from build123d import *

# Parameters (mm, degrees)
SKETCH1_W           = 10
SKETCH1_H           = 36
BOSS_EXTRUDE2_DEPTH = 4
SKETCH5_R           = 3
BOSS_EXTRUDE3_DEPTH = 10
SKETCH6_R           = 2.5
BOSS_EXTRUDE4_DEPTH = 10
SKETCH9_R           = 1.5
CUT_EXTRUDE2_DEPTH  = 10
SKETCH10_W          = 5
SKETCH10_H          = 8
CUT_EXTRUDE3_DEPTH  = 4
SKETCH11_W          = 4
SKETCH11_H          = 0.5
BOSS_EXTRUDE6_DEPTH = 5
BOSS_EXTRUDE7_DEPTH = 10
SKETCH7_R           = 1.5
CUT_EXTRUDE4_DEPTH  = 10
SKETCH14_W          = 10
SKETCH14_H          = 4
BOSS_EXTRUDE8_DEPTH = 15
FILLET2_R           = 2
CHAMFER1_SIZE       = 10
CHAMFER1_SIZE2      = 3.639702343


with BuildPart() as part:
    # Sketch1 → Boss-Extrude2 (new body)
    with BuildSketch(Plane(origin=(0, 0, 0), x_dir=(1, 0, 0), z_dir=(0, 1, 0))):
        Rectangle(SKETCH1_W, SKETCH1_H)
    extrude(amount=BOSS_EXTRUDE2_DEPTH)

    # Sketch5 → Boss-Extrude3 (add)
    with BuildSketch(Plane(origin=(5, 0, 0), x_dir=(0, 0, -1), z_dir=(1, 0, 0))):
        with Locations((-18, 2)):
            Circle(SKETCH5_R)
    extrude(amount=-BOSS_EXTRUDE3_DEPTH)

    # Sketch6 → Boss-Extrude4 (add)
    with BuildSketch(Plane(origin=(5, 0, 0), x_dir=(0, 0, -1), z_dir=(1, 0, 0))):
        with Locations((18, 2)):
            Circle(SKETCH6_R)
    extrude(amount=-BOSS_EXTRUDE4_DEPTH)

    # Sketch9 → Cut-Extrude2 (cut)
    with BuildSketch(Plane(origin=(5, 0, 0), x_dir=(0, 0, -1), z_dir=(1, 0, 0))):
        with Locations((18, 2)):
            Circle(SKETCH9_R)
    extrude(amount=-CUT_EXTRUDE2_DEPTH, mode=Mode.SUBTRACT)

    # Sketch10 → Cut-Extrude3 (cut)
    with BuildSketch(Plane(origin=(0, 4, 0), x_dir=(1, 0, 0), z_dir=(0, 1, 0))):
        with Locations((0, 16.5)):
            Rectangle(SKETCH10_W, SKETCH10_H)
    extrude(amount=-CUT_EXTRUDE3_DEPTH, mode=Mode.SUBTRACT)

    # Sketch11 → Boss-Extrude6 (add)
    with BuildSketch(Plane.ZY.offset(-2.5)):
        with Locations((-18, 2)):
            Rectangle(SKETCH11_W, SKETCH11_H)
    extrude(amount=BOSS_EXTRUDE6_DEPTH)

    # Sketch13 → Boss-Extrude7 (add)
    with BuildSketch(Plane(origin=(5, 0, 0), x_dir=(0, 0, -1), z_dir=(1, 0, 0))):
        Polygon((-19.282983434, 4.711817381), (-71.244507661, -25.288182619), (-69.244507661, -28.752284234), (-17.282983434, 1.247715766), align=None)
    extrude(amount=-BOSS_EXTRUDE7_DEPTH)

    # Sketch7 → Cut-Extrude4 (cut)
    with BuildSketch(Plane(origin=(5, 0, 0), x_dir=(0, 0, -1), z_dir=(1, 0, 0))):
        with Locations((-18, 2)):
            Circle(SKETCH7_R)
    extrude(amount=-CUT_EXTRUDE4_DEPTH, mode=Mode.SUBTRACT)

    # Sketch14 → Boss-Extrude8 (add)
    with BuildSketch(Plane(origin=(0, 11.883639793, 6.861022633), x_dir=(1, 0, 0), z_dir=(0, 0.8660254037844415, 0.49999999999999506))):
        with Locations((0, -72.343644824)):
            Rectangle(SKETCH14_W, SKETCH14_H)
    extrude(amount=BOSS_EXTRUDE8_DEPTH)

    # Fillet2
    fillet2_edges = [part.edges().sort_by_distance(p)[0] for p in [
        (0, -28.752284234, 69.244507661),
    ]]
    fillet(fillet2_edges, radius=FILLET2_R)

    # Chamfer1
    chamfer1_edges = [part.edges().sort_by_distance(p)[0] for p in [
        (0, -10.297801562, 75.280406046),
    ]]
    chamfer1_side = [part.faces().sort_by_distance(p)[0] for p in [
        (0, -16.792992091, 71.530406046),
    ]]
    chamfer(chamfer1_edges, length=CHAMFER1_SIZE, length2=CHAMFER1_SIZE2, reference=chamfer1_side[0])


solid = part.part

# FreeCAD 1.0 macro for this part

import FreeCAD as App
import Part
import Sketcher
Q = App.Units.Quantity


def edges_at(feature, points):
    """Names of the edges that pass closest to the given points."""
    edges = feature.Shape.Edges
    near = lambda p: min(range(len(edges)), key=lambda i: edges[i].distToShape(Part.Vertex(*p))[0])
    return sorted({f"Edge{near(p) + 1}" for p in points})

doc = App.newDocument("Part")
body = doc.addObject("PartDesign::Body", "Body")

sketch1 = body.newObject("Sketcher::SketchObject", "Sketch")
sketch1.AttachmentSupport = (doc.getObject("XZ_Plane"), [""])
sketch1.MapMode = "FlatFace"
sketch1.addGeometry([
    Part.LineSegment(App.Vector(-5, -18, 0), App.Vector(-5, 18, 0)),
    Part.LineSegment(App.Vector(-5, 18, 0), App.Vector(5, 18, 0)),
    Part.LineSegment(App.Vector(5, 18, 0), App.Vector(5, -18, 0)),
    Part.LineSegment(App.Vector(5, -18, 0), App.Vector(-5, -18, 0)),
], False)
sketch1.addConstraint([
    Sketcher.Constraint("Coincident", 0, 2, 1, 1),
    Sketcher.Constraint("Coincident", 1, 2, 2, 1),
    Sketcher.Constraint("Coincident", 2, 2, 3, 1),
    Sketcher.Constraint("Coincident", 3, 2, 0, 1),
    Sketcher.Constraint("Vertical", 0),
    Sketcher.Constraint("Horizontal", 1),
    Sketcher.Constraint("Vertical", 2),
    Sketcher.Constraint("Horizontal", 3),
    Sketcher.Constraint("Symmetric", 0, 2, 2, 2, -1, 1),
    Sketcher.Constraint("DistanceX", 1, 1, 1, 2, 10.0),
    Sketcher.Constraint("DistanceY", 0, 1, 0, 2, 36.0),
])
pad1 = body.newObject("PartDesign::Pad", "Pad")
pad1.Profile = sketch1
pad1.Length = 4
pad1.Reversed = True

sketch2 = body.newObject("Sketcher::SketchObject", "Sketch001")
sketch2.AttachmentSupport = (doc.getObject("YZ_Plane"), [""])
sketch2.MapMode = "FlatFace"
sketch2.AttachmentOffset = App.Placement(App.Vector(0, 0, 5), App.Rotation())
sketch2.addGeometry(Part.Circle(App.Vector(2, 18, 0), App.Vector(0, 0, 1), 3), False)
sketch2.addConstraint([
    Sketcher.Constraint("Diameter", 0, 6.0),
    Sketcher.Constraint("DistanceX", -1, 1, 0, 3, 2.0),
    Sketcher.Constraint("DistanceY", -1, 1, 0, 3, 18.0),
])
pad2 = body.newObject("PartDesign::Pad", "Pad001")
pad2.Profile = sketch2
pad2.Length = 10
pad2.Reversed = True

sketch3 = body.newObject("Sketcher::SketchObject", "Sketch002")
sketch3.AttachmentSupport = (doc.getObject("YZ_Plane"), [""])
sketch3.MapMode = "FlatFace"
sketch3.AttachmentOffset = App.Placement(App.Vector(0, 0, 5), App.Rotation())
sketch3.addGeometry(Part.Circle(App.Vector(2, -18, 0), App.Vector(0, 0, 1), 2.5), False)
sketch3.addConstraint([
    Sketcher.Constraint("Diameter", 0, 5.0),
    Sketcher.Constraint("DistanceX", -1, 1, 0, 3, 2.0),
    Sketcher.Constraint("DistanceY", 0, 3, -1, 1, 18.0),
])
pad3 = body.newObject("PartDesign::Pad", "Pad002")
pad3.Profile = sketch3
pad3.Length = 10
pad3.Reversed = True

sketch4 = body.newObject("Sketcher::SketchObject", "Sketch003")
sketch4.AttachmentSupport = (doc.getObject("YZ_Plane"), [""])
sketch4.MapMode = "FlatFace"
sketch4.AttachmentOffset = App.Placement(App.Vector(0, 0, 5), App.Rotation())
sketch4.addGeometry(Part.Circle(App.Vector(2, -18, 0), App.Vector(0, 0, 1), 1.5), False)
sketch4.addConstraint([
    Sketcher.Constraint("Diameter", 0, 3.0),
    Sketcher.Constraint("DistanceX", -1, 1, 0, 3, 2.0),
    Sketcher.Constraint("DistanceY", 0, 3, -1, 1, 18.0),
])
pocket1 = body.newObject("PartDesign::Pocket", "Pocket")
pocket1.Profile = sketch4
pocket1.Length = 10

sketch5 = body.newObject("Sketcher::SketchObject", "Sketch004")
sketch5.AttachmentSupport = (doc.getObject("XZ_Plane"), [""])
sketch5.MapMode = "FlatFace"
sketch5.AttachmentOffset = App.Placement(App.Vector(0, 0, -4), App.Rotation())
sketch5.addGeometry([
    Part.LineSegment(App.Vector(-2, -20, 0), App.Vector(-2, -12, 0)),
    Part.LineSegment(App.Vector(-2, -12, 0), App.Vector(2, -12, 0)),
    Part.LineSegment(App.Vector(2, -12, 0), App.Vector(2, -20, 0)),
    Part.LineSegment(App.Vector(2, -20, 0), App.Vector(-2, -20, 0)),
], False)
sketch5.addConstraint([
    Sketcher.Constraint("Coincident", 0, 2, 1, 1),
    Sketcher.Constraint("Coincident", 1, 2, 2, 1),
    Sketcher.Constraint("Coincident", 2, 2, 3, 1),
    Sketcher.Constraint("Coincident", 3, 2, 0, 1),
    Sketcher.Constraint("Vertical", 0),
    Sketcher.Constraint("Horizontal", 1),
    Sketcher.Constraint("Vertical", 2),
    Sketcher.Constraint("Horizontal", 3),
    Sketcher.Constraint("DistanceX", 1, 1, 1, 2, 5.0),
    Sketcher.Constraint("DistanceY", 0, 1, 0, 2, 8.0),
    Sketcher.Constraint("DistanceX", 0, 2, -1, 1, 2.5),
    Sketcher.Constraint("DistanceY", 0, 2, -1, 1, 12.5),
])
pocket2 = body.newObject("PartDesign::Pocket", "Pocket001")
pocket2.Profile = sketch5
pocket2.Length = 4
pocket2.Reversed = True

sketch6 = body.newObject("Sketcher::SketchObject", "Sketch005")
sketch6.AttachmentSupport = (doc.getObject("YZ_Plane"), [""])
sketch6.MapMode = "FlatFace"
sketch6.AttachmentOffset = App.Placement(App.Vector(0, 0, 2.5), App.Rotation())
sketch6.addGeometry([
    Part.LineSegment(App.Vector(2.2, -20, 0), App.Vector(1.8, -20, 0)),
    Part.LineSegment(App.Vector(1.8, -20, 0), App.Vector(1.8, -16, 0)),
    Part.LineSegment(App.Vector(1.8, -16, 0), App.Vector(2.2, -16, 0)),
    Part.LineSegment(App.Vector(2.2, -16, 0), App.Vector(2.2, -20, 0)),
], False)
sketch6.addConstraint([
    Sketcher.Constraint("Coincident", 0, 2, 1, 1),
    Sketcher.Constraint("Coincident", 1, 2, 2, 1),
    Sketcher.Constraint("Coincident", 2, 2, 3, 1),
    Sketcher.Constraint("Coincident", 3, 2, 0, 1),
    Sketcher.Constraint("Horizontal", 0),
    Sketcher.Constraint("Vertical", 1),
    Sketcher.Constraint("Horizontal", 2),
    Sketcher.Constraint("Vertical", 3),
    Sketcher.Constraint("DistanceY", 1, 1, 1, 2, 4.0),
    Sketcher.Constraint("DistanceX", 0, 2, 0, 1, 0.5),
    Sketcher.Constraint("DistanceY", 0, 2, -1, 1, 20.0),
    Sketcher.Constraint("DistanceX", -1, 1, 0, 2, 1.75),
])
pad4 = body.newObject("PartDesign::Pad", "Pad003")
pad4.Profile = sketch6
pad4.Length = 5
pad4.Reversed = True

sketch7 = body.newObject("Sketcher::SketchObject", "Sketch006")
sketch7.AttachmentSupport = (doc.getObject("YZ_Plane"), [""])
sketch7.MapMode = "FlatFace"
sketch7.AttachmentOffset = App.Placement(App.Vector(0, 0, 5), App.Rotation())
sketch7.addGeometry([
    Part.LineSegment(App.Vector(4.7, 19.3, 0), App.Vector(-25.3, 71.2, 0)),
    Part.LineSegment(App.Vector(-25.3, 71.2, 0), App.Vector(-28.8, 69.2, 0)),
    Part.LineSegment(App.Vector(-28.8, 69.2, 0), App.Vector(1.2, 17.3, 0)),
    Part.LineSegment(App.Vector(1.2, 17.3, 0), App.Vector(4.7, 19.3, 0)),
], False)
sketch7.addConstraint([
    Sketcher.Constraint("Coincident", 0, 2, 1, 1),
    Sketcher.Constraint("Coincident", 1, 2, 2, 1),
    Sketcher.Constraint("Coincident", 2, 2, 3, 1),
    Sketcher.Constraint("Coincident", 3, 2, 0, 1),
    Sketcher.Constraint("Perpendicular", 0, 1),
    Sketcher.Constraint("Perpendicular", 1, 2),
    Sketcher.Constraint("Perpendicular", 2, 3),
    Sketcher.Constraint("Angle", 0, Q("120 deg")),
    Sketcher.Constraint("Distance", 0, 60.0),
    Sketcher.Constraint("Distance", 1, 4.0),
    Sketcher.Constraint("DistanceX", 0, 2, -1, 1, 25.288183),
    Sketcher.Constraint("DistanceY", -1, 1, 0, 2, 71.244508),
])
pad5 = body.newObject("PartDesign::Pad", "Pad004")
pad5.Profile = sketch7
pad5.Length = 10
pad5.Reversed = True

sketch8 = body.newObject("Sketcher::SketchObject", "Sketch007")
sketch8.AttachmentSupport = (doc.getObject("YZ_Plane"), [""])
sketch8.MapMode = "FlatFace"
sketch8.AttachmentOffset = App.Placement(App.Vector(0, 0, 5), App.Rotation())
sketch8.addGeometry(Part.Circle(App.Vector(2, 18, 0), App.Vector(0, 0, 1), 1.5), False)
sketch8.addConstraint([
    Sketcher.Constraint("Diameter", 0, 3.0),
    Sketcher.Constraint("DistanceX", -1, 1, 0, 3, 2.0),
    Sketcher.Constraint("DistanceY", -1, 1, 0, 3, 18.0),
])
pocket3 = body.newObject("PartDesign::Pocket", "Pocket002")
pocket3.Profile = sketch8
pocket3.Length = 10

sketch9 = body.newObject("Sketcher::SketchObject", "Sketch008")
sketch9.Placement = App.Placement(App.Vector(0, 11.88364, 6.861023), App.Rotation(App.Vector(1, 0, 0), App.Vector(0, 0.5, -0.866025404), App.Vector(0, 0.866025404, 0.5), "ZXY"))
sketch9.addGeometry([
    Part.LineSegment(App.Vector(-5, -70.3, 0), App.Vector(-5, -74.3, 0)),
    Part.LineSegment(App.Vector(-5, -74.3, 0), App.Vector(5, -74.3, 0)),
    Part.LineSegment(App.Vector(5, -74.3, 0), App.Vector(5, -70.3, 0)),
    Part.LineSegment(App.Vector(5, -70.3, 0), App.Vector(-5, -70.3, 0)),
], False)
sketch9.addConstraint([
    Sketcher.Constraint("Coincident", 0, 2, 1, 1),
    Sketcher.Constraint("Coincident", 1, 2, 2, 1),
    Sketcher.Constraint("Coincident", 2, 2, 3, 1),
    Sketcher.Constraint("Coincident", 3, 2, 0, 1),
    Sketcher.Constraint("Vertical", 0),
    Sketcher.Constraint("Horizontal", 1),
    Sketcher.Constraint("Vertical", 2),
    Sketcher.Constraint("Horizontal", 3),
    Sketcher.Constraint("DistanceX", 1, 1, 1, 2, 10.0),
    Sketcher.Constraint("DistanceY", 0, 2, 0, 1, 4.0),
    Sketcher.Constraint("DistanceX", 0, 2, -1, 1, 5.0),
    Sketcher.Constraint("DistanceY", 0, 2, -1, 1, 74.343645),
])
pad6 = body.newObject("PartDesign::Pad", "Pad005")
pad6.Profile = sketch9
pad6.Length = 15
doc.recompute()

fillet = body.newObject("PartDesign::Fillet", "Fillet")
fillet.Base = (pad6, edges_at(pad6, [(0, -28.752, 69.245)]))
fillet.Radius = 2
doc.recompute()

chamfer = body.newObject("PartDesign::Chamfer", "Chamfer")
chamfer.Base = (fillet, edges_at(fillet, [(0, -10.298, 75.28)]))
chamfer.ChamferType = "Two distances"
chamfer.Size = 10
chamfer.Size2 = 3.639702
chamfer.FlipDirection = True

doc.recompute()
